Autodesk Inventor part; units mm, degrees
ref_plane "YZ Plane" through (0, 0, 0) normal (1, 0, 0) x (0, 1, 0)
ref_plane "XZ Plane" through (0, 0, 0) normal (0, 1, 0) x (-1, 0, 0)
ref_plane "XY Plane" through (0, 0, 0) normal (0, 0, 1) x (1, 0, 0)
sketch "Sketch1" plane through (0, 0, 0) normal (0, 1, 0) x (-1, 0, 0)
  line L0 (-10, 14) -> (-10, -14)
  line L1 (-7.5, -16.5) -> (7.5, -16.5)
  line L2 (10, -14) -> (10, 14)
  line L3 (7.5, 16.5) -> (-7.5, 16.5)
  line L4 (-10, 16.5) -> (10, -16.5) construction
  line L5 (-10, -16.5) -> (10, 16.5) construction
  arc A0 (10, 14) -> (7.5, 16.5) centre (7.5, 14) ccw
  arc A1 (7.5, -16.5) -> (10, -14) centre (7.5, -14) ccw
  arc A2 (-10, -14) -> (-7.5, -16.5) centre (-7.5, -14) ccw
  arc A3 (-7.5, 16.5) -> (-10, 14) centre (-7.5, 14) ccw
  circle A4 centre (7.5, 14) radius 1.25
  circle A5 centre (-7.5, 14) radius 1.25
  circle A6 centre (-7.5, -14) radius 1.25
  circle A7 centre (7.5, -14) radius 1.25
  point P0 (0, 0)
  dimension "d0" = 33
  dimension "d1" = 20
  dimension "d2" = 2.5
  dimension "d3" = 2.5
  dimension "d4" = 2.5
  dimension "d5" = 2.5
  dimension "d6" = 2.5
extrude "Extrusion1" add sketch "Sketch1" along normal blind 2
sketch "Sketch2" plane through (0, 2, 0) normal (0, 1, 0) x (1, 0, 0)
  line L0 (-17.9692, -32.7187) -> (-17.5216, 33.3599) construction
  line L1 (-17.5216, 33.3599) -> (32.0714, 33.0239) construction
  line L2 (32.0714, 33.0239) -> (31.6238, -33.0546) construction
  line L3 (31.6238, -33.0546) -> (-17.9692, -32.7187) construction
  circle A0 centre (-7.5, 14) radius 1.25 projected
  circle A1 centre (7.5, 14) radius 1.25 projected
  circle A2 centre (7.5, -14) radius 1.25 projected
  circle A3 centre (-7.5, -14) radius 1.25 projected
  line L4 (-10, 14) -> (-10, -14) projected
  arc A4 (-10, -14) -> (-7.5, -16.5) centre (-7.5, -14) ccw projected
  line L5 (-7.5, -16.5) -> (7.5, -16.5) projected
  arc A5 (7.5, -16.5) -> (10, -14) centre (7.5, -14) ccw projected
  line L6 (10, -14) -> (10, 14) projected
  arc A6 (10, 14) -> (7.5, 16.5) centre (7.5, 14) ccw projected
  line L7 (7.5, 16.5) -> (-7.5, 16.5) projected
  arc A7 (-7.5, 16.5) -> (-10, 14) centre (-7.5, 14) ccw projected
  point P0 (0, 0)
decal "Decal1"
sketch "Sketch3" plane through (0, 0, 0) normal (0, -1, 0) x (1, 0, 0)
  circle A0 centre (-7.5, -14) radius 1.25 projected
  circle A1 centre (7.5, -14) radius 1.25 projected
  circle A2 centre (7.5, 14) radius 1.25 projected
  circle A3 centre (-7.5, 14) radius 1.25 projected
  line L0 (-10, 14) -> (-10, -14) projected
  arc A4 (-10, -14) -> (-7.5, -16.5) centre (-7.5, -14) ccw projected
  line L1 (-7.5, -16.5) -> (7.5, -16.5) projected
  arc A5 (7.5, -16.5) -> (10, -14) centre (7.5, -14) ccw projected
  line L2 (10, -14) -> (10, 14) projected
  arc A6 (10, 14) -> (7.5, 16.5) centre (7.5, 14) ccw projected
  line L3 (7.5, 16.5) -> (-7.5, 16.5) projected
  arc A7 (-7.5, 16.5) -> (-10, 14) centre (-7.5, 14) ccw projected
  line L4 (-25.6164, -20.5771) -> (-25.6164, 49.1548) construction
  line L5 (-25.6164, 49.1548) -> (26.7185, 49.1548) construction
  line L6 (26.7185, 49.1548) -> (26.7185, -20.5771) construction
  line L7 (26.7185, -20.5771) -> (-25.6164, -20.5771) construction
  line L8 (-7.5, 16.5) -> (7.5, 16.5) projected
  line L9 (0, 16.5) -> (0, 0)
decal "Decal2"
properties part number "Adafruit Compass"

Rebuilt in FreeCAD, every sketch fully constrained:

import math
import FreeCAD as App
import Part
import Sketcher

V = App.Vector

doc = App.newDocument("Part")
params = doc.addObject("Spreadsheet::Sheet", "Params")
for row, (alias, value) in enumerate([
    ("sketch1_diameter", "2.5 mm"),
    ("sketch1_radius", "2.5 mm"),
    ("sketch1_height", "28 mm"),
    ("pad1_length", "2 mm"),
], start=1):
    params.set(f"A{row}", alias)
    params.set(f"B{row}", "=" + value)
    params.setAlias(f"B{row}", alias)

body = doc.addObject("PartDesign::Body", "Body")

sketch1 = body.newObject("Sketcher::SketchObject", "Sketch")
sketch1.AttachmentSupport = (doc.getObject("XZ_Plane"), [""])
sketch1.MapMode = "FlatFace"
sketch1.addGeometry([
    Part.ArcOfCircle(Part.Circle(V(7.5, 14, 0), V(0, 0, 1), 2.5), math.radians(0), math.radians(90)),
    Part.LineSegment(V(10, 14, 0), V(10, -14, 0)),
    Part.ArcOfCircle(Part.Circle(V(7.5, -14, 0), V(0, 0, 1), 2.5), math.radians(-90), math.radians(0)),
    Part.LineSegment(V(7.5, -16.5, 0), V(-7.5, -16.5, 0)),
    Part.ArcOfCircle(Part.Circle(V(-7.5, -14, 0), V(0, 0, 1), 2.5), math.radians(180), math.radians(270)),
    Part.LineSegment(V(-10, -14, 0), V(-10, 14, 0)),
    Part.ArcOfCircle(Part.Circle(V(-7.5, 14, 0), V(0, 0, 1), 2.5), math.radians(90), math.radians(180)),
    Part.LineSegment(V(-7.5, 16.5, 0), V(7.5, 16.5, 0)),
    Part.Circle(V(7.5, -14, 0), V(0, 0, 1), 1.2),
    Part.Circle(V(-7.5, -14, 0), V(0, 0, 1), 1.2),
    Part.Circle(V(7.5, 14, 0), V(0, 0, 1), 1.2),
    Part.Circle(V(-7.5, 14, 0), V(0, 0, 1), 1.2),
], False)
sketch1.addConstraint([
    Sketcher.Constraint("Tangent", 0, 1, 1, 1),
    Sketcher.Constraint("Tangent", 1, 2, 2, 2),
    Sketcher.Constraint("Tangent", 2, 1, 3, 1),
    Sketcher.Constraint("Tangent", 3, 2, 4, 2),
    Sketcher.Constraint("Tangent", 4, 1, 5, 1),
    Sketcher.Constraint("Tangent", 5, 2, 6, 2),
    Sketcher.Constraint("Tangent", 6, 1, 7, 1),
    Sketcher.Constraint("Tangent", 7, 2, 0, 2),
    Sketcher.Constraint("Vertical", 1),
    Sketcher.Constraint("Horizontal", 3),
    Sketcher.Constraint("Vertical", 5),
    Sketcher.Constraint("Horizontal", 7),
    Sketcher.Constraint("Coincident", 8, 3, 2, 3),
    Sketcher.Constraint("Coincident", 9, 3, 4, 3),
    Sketcher.Constraint("Coincident", 10, 3, 0, 3),
    Sketcher.Constraint("Coincident", 11, 3, 6, 3),
    Sketcher.Constraint("Equal", 0, 2),
    Sketcher.Constraint("Equal", 2, 4),
    Sketcher.Constraint("Equal", 4, 6),
    Sketcher.Constraint("Equal", 8, 9),
    Sketcher.Constraint("Equal", 9, 10),
    Sketcher.Constraint("Equal", 10, 11),
    Sketcher.Constraint("Symmetric", 0, 3, 4, 3, -1, 1),
    Sketcher.Constraint("Diameter", 8, 2.5),
    Sketcher.Constraint("Radius", 0, 2.5),
    Sketcher.Constraint("DistanceX", 5, 2, 0, 1, 20.0),
    Sketcher.Constraint("DistanceY", 1, 2, 1, 1, 28.0),
])
sketch1.setExpression("Constraints[23]", "Params.sketch1_diameter")
sketch1.setExpression("Constraints[24]", "Params.sketch1_radius")
sketch1.setExpression("Constraints[26]", "Params.sketch1_height")
pad1 = body.newObject("PartDesign::Pad", "Pad")
pad1.Profile = sketch1
pad1.setExpression("Length", "Params.pad1_length")
pad1.Reversed = True

doc.recompute()
